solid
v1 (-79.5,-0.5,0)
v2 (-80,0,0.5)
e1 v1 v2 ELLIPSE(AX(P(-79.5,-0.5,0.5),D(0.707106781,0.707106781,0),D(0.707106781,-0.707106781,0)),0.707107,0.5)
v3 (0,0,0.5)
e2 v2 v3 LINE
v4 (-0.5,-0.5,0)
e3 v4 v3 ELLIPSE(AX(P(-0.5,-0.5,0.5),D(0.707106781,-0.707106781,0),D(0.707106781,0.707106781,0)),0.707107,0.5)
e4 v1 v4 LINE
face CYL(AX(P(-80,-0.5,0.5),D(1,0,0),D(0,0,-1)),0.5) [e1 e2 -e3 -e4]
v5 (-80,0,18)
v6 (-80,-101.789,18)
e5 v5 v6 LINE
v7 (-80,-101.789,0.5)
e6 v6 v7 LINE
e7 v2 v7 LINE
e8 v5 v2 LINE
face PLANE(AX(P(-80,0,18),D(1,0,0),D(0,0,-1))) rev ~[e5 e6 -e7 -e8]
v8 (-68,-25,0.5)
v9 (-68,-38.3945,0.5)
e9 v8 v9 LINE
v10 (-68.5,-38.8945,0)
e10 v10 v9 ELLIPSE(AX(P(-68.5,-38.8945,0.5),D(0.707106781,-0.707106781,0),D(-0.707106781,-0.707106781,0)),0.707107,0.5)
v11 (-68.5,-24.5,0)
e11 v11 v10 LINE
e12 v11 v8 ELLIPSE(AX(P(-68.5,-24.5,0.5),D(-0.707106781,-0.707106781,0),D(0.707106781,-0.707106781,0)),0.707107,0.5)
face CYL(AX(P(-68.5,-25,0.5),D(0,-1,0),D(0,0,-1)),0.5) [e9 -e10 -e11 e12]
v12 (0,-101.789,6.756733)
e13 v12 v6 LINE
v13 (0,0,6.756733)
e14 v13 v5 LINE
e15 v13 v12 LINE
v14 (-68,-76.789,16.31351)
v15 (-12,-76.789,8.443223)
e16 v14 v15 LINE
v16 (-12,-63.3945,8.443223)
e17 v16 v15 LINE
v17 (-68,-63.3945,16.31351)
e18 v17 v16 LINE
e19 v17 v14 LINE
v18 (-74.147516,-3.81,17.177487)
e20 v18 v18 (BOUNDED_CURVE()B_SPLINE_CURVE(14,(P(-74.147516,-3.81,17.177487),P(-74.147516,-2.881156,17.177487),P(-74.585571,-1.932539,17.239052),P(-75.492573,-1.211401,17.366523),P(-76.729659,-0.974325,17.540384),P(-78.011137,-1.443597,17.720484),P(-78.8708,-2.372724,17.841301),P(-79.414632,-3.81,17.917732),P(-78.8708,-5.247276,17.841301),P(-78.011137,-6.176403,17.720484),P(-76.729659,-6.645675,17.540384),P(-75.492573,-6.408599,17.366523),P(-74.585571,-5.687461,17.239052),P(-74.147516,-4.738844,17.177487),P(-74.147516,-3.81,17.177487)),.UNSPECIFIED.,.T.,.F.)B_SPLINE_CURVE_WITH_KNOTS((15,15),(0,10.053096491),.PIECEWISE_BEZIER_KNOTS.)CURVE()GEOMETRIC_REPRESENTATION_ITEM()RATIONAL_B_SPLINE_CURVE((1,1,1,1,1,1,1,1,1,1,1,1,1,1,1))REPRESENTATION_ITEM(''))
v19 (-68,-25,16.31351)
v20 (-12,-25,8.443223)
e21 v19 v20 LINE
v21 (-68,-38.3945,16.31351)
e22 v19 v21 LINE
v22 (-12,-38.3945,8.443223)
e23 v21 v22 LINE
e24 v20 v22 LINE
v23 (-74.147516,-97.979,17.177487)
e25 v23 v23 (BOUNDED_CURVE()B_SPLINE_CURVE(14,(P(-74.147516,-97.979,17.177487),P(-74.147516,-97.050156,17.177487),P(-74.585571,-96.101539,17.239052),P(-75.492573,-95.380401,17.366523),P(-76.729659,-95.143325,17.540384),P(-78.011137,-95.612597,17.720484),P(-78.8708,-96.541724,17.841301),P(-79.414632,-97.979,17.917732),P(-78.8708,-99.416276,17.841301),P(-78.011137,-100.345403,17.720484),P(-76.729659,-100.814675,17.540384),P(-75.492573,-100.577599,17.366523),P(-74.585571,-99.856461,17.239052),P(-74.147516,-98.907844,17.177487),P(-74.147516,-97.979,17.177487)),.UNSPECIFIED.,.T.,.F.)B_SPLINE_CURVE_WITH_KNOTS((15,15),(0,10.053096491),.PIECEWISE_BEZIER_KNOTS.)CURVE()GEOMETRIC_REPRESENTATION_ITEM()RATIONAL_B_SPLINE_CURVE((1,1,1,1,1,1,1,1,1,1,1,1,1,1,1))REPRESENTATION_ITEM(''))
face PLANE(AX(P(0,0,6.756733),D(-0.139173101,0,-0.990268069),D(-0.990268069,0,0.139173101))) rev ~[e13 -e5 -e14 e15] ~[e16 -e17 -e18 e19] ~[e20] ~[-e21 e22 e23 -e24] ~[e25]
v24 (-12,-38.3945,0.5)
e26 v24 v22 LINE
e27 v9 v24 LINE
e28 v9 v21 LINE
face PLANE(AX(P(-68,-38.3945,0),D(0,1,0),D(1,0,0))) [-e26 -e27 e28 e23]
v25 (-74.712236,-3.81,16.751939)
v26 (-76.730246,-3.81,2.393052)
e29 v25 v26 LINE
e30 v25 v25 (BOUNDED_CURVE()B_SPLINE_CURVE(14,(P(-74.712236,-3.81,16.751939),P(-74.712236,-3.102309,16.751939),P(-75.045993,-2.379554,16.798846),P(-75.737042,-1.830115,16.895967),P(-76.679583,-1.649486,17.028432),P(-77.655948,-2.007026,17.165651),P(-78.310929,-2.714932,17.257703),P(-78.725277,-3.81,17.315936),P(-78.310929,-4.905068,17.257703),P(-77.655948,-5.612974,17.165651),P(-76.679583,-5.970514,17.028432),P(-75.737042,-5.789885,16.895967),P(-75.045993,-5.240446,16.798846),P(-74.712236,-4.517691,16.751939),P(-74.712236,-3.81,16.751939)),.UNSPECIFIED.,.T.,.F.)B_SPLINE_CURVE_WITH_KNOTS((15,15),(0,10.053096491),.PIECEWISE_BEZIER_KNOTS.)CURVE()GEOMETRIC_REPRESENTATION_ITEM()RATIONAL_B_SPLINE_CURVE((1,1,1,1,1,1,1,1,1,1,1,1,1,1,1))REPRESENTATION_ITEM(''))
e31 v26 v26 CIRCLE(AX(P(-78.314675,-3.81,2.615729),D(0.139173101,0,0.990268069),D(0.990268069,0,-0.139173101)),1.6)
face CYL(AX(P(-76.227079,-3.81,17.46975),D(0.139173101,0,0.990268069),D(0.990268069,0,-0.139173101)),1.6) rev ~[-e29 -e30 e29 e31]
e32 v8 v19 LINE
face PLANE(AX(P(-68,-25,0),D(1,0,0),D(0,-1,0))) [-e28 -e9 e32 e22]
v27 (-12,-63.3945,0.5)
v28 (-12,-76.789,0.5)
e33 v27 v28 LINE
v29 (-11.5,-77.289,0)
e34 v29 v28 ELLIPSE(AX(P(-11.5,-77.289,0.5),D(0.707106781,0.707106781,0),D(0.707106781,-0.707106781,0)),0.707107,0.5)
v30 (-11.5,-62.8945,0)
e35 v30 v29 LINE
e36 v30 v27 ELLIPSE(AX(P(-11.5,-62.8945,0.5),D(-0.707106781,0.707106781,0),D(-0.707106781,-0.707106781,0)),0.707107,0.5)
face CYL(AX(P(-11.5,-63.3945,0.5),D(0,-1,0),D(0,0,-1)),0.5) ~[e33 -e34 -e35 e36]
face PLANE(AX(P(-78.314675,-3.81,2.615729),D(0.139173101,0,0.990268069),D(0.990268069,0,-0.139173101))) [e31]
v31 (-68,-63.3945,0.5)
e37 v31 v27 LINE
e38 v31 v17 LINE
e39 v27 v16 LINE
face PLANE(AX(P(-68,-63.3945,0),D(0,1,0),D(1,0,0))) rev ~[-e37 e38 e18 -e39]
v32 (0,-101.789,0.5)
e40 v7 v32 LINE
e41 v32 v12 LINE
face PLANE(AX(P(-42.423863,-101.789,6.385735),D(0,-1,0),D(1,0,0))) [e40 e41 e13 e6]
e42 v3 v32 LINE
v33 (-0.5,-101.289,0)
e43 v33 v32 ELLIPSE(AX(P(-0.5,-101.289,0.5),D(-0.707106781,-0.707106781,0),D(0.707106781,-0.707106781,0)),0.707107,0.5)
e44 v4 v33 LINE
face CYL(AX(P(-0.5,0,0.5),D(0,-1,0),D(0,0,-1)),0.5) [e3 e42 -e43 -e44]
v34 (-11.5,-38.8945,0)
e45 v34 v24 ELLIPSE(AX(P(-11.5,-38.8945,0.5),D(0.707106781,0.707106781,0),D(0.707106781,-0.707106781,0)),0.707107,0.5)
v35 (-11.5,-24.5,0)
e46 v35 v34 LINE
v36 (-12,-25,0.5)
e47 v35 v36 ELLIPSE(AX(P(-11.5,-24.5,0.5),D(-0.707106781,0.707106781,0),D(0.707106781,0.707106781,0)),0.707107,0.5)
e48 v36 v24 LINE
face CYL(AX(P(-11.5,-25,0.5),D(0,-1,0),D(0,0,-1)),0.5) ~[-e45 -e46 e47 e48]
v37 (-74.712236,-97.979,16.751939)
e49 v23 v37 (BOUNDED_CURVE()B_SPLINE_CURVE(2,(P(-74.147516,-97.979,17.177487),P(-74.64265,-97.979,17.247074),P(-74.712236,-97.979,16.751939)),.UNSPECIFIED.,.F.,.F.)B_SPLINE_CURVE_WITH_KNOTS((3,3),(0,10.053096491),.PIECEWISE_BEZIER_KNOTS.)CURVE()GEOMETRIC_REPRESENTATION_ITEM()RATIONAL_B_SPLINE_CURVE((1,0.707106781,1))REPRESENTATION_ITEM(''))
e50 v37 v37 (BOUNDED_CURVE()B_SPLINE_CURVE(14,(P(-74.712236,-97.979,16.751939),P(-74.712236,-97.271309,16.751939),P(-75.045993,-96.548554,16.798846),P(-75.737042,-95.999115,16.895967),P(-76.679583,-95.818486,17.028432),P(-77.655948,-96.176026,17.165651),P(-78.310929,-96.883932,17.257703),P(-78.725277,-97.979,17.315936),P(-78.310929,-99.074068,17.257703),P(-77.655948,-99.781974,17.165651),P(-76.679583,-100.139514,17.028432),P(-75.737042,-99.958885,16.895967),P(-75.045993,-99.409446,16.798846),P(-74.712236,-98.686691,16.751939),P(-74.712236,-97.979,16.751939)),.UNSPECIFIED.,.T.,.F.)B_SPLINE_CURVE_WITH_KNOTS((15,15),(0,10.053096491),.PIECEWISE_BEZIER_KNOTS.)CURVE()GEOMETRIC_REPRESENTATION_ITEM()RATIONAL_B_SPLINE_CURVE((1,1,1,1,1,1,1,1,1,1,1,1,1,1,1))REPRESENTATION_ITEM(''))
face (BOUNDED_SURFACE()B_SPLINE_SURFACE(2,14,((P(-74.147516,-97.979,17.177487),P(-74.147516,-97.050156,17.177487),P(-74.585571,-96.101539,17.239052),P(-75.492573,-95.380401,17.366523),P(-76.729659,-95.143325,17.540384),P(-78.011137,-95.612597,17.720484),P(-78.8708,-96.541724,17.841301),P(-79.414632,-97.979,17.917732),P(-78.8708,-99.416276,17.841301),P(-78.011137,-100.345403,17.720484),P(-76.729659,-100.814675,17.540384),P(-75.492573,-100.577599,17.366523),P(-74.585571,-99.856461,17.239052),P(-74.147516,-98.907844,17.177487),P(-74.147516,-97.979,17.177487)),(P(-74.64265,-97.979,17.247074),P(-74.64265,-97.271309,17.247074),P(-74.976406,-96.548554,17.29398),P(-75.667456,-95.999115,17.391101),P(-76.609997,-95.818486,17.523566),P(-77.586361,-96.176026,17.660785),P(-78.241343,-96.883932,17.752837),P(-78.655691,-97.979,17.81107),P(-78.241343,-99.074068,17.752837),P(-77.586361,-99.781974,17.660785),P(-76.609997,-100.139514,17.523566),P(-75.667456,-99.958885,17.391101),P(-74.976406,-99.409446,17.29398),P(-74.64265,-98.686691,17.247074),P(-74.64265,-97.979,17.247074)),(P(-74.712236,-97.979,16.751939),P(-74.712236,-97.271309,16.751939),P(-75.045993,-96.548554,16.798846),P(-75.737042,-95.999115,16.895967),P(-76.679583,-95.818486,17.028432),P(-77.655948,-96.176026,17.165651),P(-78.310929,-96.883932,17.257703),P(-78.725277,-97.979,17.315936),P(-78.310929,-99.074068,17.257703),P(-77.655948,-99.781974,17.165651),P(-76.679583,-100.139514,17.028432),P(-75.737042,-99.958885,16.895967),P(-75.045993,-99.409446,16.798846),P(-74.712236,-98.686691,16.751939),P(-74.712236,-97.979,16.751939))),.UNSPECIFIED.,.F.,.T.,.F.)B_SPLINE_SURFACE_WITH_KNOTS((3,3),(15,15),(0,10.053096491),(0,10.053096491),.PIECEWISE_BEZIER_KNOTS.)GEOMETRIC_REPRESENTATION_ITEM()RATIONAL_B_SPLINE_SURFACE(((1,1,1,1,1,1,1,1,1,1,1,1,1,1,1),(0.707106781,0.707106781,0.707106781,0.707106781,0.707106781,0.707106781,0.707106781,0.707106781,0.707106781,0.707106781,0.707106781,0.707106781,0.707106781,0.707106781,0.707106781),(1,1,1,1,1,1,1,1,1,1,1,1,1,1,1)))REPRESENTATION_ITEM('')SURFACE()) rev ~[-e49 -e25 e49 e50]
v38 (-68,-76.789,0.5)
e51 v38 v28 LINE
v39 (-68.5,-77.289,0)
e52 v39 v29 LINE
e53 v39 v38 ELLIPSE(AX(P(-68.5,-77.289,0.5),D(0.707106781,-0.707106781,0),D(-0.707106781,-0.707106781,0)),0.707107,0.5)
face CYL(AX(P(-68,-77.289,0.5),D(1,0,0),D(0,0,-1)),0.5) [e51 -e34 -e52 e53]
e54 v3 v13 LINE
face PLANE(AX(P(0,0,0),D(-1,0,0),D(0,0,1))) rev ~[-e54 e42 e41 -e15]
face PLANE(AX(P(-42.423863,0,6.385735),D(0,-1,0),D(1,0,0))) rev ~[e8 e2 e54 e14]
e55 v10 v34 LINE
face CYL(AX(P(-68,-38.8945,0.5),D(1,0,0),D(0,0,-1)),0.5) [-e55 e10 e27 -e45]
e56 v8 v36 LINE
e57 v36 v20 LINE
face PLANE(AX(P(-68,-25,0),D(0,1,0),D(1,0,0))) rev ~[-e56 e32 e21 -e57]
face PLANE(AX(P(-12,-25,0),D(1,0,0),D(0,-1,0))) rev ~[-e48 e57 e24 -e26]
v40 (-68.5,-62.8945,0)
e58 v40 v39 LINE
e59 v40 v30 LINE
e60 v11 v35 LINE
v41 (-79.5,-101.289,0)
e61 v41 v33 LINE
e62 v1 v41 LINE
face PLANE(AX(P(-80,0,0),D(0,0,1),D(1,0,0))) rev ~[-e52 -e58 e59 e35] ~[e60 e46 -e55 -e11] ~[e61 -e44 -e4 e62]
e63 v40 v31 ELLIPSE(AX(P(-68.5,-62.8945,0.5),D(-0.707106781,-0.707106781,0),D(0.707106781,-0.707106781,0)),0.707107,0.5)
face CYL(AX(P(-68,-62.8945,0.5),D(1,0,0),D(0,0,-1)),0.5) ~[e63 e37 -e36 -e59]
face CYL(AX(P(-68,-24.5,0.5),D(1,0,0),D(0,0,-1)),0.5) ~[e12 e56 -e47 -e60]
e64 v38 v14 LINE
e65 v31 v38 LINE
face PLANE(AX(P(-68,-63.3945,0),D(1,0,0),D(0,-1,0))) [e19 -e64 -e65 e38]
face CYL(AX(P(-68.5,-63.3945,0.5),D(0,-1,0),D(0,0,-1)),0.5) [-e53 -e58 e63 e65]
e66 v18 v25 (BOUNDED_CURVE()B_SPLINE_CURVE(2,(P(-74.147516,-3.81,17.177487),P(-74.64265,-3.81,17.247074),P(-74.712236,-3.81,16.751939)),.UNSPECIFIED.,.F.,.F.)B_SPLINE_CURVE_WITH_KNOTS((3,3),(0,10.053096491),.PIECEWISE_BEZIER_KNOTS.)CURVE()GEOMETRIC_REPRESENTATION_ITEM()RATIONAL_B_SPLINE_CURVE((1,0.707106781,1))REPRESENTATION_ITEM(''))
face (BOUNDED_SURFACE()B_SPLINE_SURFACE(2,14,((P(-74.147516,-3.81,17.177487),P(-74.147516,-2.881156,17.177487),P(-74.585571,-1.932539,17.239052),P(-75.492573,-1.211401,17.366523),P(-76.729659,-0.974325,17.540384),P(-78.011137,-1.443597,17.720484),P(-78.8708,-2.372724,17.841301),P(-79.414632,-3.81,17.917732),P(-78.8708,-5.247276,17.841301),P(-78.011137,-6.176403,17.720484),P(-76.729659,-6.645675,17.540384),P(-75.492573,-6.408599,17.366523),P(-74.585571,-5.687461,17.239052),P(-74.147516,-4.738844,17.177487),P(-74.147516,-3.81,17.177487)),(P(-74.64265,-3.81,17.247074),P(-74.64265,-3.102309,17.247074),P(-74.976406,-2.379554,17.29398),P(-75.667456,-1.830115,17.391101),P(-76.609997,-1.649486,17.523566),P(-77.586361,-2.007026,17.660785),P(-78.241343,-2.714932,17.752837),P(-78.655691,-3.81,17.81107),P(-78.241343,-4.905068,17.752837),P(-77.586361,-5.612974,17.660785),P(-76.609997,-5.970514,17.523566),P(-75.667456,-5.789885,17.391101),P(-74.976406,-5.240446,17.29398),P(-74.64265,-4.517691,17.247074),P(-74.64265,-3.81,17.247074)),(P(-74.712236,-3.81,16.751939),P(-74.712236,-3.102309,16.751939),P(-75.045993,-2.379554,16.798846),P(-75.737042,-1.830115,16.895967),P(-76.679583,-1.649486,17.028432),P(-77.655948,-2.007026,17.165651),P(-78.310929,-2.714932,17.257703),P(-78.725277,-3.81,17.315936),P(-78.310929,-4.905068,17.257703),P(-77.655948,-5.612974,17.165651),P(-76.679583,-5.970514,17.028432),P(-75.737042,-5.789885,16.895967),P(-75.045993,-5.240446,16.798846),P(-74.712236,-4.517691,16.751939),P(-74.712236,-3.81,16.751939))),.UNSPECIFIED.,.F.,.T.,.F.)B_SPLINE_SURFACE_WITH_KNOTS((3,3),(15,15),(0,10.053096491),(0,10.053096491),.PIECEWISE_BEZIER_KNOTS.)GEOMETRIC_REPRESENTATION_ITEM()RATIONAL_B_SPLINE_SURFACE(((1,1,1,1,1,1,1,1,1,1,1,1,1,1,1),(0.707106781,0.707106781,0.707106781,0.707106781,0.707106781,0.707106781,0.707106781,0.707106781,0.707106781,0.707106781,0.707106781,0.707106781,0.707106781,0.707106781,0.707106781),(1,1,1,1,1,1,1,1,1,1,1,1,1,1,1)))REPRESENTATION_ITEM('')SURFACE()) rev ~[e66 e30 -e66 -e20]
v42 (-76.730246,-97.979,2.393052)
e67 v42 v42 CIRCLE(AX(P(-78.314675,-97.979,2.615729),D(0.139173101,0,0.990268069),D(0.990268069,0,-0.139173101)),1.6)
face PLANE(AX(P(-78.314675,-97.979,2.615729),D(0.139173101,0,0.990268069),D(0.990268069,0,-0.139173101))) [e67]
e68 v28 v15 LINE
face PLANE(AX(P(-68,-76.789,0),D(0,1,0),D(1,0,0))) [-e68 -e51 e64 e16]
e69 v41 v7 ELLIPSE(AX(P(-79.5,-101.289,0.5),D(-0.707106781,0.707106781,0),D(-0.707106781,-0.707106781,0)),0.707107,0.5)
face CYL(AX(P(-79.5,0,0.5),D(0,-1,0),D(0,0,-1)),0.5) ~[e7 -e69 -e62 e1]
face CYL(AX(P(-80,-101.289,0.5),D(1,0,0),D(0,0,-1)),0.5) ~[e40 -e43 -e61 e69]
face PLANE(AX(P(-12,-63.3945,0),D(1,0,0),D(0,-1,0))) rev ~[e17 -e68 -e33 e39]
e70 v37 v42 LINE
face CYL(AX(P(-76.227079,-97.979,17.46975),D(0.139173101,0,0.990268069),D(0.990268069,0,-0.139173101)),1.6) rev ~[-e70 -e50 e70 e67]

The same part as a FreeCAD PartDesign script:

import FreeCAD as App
import Part
import Sketcher

V = App.Vector
Q = App.Units.Quantity


def edges_at(feature, points):
    """Names of the edges that pass closest to the given points."""
    edges = feature.Shape.Edges
    near = lambda p: min(range(len(edges)), key=lambda i: edges[i].distToShape(Part.Vertex(*p))[0])
    return sorted({f"Edge{near(p) + 1}" for p in points})


def add_polygon(sketch, points):
    """Adds a closed chain of lines whose ends are joined by coincident constraints."""
    first, n = sketch.GeometryCount, len(points)
    for a, b in zip(points, points[1:] + points[:1]):
        sketch.addGeometry(Part.LineSegment(App.Vector(*a, 0), App.Vector(*b, 0)), False)
    for i in range(n):
        sketch.addConstraint(Sketcher.Constraint("Coincident", first + i, 2, first + (i + 1) % n, 1))

doc = App.newDocument("Part")
body = doc.addObject("PartDesign::Body", "Body")

sketch1 = body.newObject("Sketcher::SketchObject", "Sketch")
sketch1.AttachmentSupport = (doc.getObject("XZ_Plane"), [""])
sketch1.MapMode = "FlatFace"
add_polygon(sketch1, [(-80, 0), (0, 0), (0, 6.756733), (-80, 18)])
sketch1.addConstraint([
    Sketcher.Constraint("Horizontal", 0),
    Sketcher.Constraint("Vertical", 1),
    Sketcher.Constraint("Vertical", 3),
    Sketcher.Constraint("Coincident", 0, 2, -1, 1),
    Sketcher.Constraint("DistanceX", 0, 1, 0, 2, 80.0),
    Sketcher.Constraint("DistanceY", 3, 2, 3, 1, 18.0),
    Sketcher.Constraint("Angle", 2, Q("172 deg")),
])
pad1 = body.newObject("PartDesign::Pad", "Pad")
pad1.Profile = sketch1
pad1.Length = 101.789

sketch2 = body.newObject("Sketcher::SketchObject", "Sketch001")
sketch2.AttachmentSupport = (doc.getObject("XY_Plane"), [""])
sketch2.MapMode = "FlatFace"
add_polygon(sketch2, [(-68, -76.789), (-68, -63.3945), (-12, -63.3945), (-12, -76.789)])
add_polygon(sketch2, [(-68, -38.3945), (-68, -25), (-12, -25), (-12, -38.3945)])
sketch2.addConstraint([
    Sketcher.Constraint("Vertical", 0),
    Sketcher.Constraint("Horizontal", 1),
    Sketcher.Constraint("Vertical", 2),
    Sketcher.Constraint("Horizontal", 3),
    Sketcher.Constraint("Vertical", 4),
    Sketcher.Constraint("Horizontal", 5),
    Sketcher.Constraint("Vertical", 6),
    Sketcher.Constraint("Horizontal", 7),
    Sketcher.Constraint("Vertical", 3, 2, 4, 2),
    Sketcher.Constraint("Vertical", 2, 2, 5, 2),
    Sketcher.Constraint("Equal", 2, 4),
    Sketcher.Constraint("DistanceX", 1, 1, 1, 2, 56.0),
    Sketcher.Constraint("DistanceX", 0, 2, -1, 1, 68.0),
    Sketcher.Constraint("DistanceY", 4, 2, -1, 1, 25.0),
    Sketcher.Constraint("DistanceY", 1, 2, 6, 2, 25.0),
    Sketcher.Constraint("DistanceY", 0, 1, 0, 2, 13.3945),
])
pocket1 = body.newObject("PartDesign::Pocket", "Pocket")
pocket1.Profile = sketch2
pocket1.Length = 25
pocket1.Reversed = True

sketch3 = body.newObject("Sketcher::SketchObject", "Sketch002")
sketch3.Placement = App.Placement(V(0.931204, 0, 6.625861), App.Rotation(V(0.990268069, 0, -0.139173101), V(0, 1.000000001, 0), V(0.139173101, 0, 0.990268069), "ZXY"))
sketch3.addGeometry([
    Part.Circle(V(-77.916561, -3.81, 0), V(0, 0, 1), 1.6),
    Part.Circle(V(-77.916561, -97.979, 0), V(0, 0, 1), 1.6),
], False)
sketch3.addConstraint([
    Sketcher.Constraint("Equal", 0, 1),
    Sketcher.Constraint("Vertical", 0, 3, 1, 3),
    Sketcher.Constraint("Diameter", 0, 3.2),
    Sketcher.Constraint("DistanceY", 0, 3, -1, 1, 3.81),
    Sketcher.Constraint("DistanceY", 1, 3, -1, 1, 97.979),
    Sketcher.Constraint("DistanceX", 0, 3, -1, 1, 77.916561),
])
pocket2 = body.newObject("PartDesign::Pocket", "Pocket001")
pocket2.Profile = sketch3
pocket2.Length = 15
doc.recompute()

fillet = body.newObject("PartDesign::Fillet", "Fillet")
fillet.Base = (pocket2, edges_at(pocket2, [
    (-77.812, -97.979, 17.692),
    (-77.812, -3.81, 17.692),
    (-80, -50.895, 0),
    (-40, 0, 0),
    (-40, -101.789, 0),
    (0, -50.895, 0),
    (-12, -70.092, 0),
    (-40, -63.395, 0),
    (-68, -70.092, 0),
    (-40, -76.789, 0),
    (-40, -25, 0),
    (-68, -31.697, 0),
    (-40, -38.395, 0),
    (-12, -31.697, 0),
]))
fillet.Radius = 0.5

doc.recompute()
